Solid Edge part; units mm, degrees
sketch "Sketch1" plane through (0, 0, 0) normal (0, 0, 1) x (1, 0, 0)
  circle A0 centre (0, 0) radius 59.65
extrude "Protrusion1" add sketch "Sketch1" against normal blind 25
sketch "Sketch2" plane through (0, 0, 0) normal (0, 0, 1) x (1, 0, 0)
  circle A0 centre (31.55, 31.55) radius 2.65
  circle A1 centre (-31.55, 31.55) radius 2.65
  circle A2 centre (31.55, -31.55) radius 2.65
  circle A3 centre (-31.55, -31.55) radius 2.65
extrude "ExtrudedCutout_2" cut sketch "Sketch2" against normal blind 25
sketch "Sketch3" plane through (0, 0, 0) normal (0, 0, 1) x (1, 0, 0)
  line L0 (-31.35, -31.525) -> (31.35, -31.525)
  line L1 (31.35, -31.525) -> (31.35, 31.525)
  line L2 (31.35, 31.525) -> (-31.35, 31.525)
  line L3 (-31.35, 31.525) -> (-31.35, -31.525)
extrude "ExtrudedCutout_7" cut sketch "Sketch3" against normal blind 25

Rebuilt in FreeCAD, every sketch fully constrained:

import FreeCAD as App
import Part
import Sketcher

V = App.Vector

doc = App.newDocument("Part")
body = doc.addObject("PartDesign::Body", "Body")

sketch1 = body.newObject("Sketcher::SketchObject", "Sketch")
sketch1.AttachmentSupport = (doc.getObject("XY_Plane"), [""])
sketch1.MapMode = "FlatFace"
sketch1.addGeometry(Part.Circle(V(0, 0, 0), V(0, 0, 1), 60), False)
sketch1.addConstraint([
    Sketcher.Constraint("Coincident", 0, 3, -1, 1),
    Sketcher.Constraint("Diameter", 0, 119.3),
])
pad1 = body.newObject("PartDesign::Pad", "Pad")
pad1.Profile = sketch1
pad1.Length = 25
pad1.Reversed = True

sketch2 = body.newObject("Sketcher::SketchObject", "Sketch001")
sketch2.AttachmentSupport = (doc.getObject("XY_Plane"), [""])
sketch2.MapMode = "FlatFace"
sketch2.addGeometry([
    Part.Circle(V(31.6, 31.6, 0), V(0, 0, 1), 2.6),
    Part.Circle(V(-31.6, 31.6, 0), V(0, 0, 1), 2.6),
    Part.Circle(V(31.6, -31.6, 0), V(0, 0, 1), 2.6),
    Part.Circle(V(-31.6, -31.6, 0), V(0, 0, 1), 2.6),
], False)
sketch2.addConstraint([
    Sketcher.Constraint("Equal", 0, 1),
    Sketcher.Constraint("Equal", 1, 2),
    Sketcher.Constraint("Equal", 2, 3),
    Sketcher.Constraint("Symmetric", 1, 3, 2, 3, -1, 1),
    Sketcher.Constraint("Symmetric", 0, 3, 3, 3, -1, 1),
    Sketcher.Constraint("Symmetric", 0, 3, 1, 3, -2),
    Sketcher.Constraint("Diameter", 0, 5.3),
    Sketcher.Constraint("DistanceX", 1, 3, 0, 3, 63.1),
    Sketcher.Constraint("DistanceY", 2, 3, 0, 3, 63.1),
])
pocket1 = body.newObject("PartDesign::Pocket", "Pocket")
pocket1.Profile = sketch2
pocket1.Length = 25

sketch3 = body.newObject("Sketcher::SketchObject", "Sketch002")
sketch3.AttachmentSupport = (doc.getObject("XY_Plane"), [""])
sketch3.MapMode = "FlatFace"
sketch3.addGeometry([
    Part.LineSegment(V(-31, 32, 0), V(-31, -32, 0)),
    Part.LineSegment(V(-31, -32, 0), V(31, -32, 0)),
    Part.LineSegment(V(31, -32, 0), V(31, 32, 0)),
    Part.LineSegment(V(31, 32, 0), V(-31, 32, 0)),
], False)
sketch3.addConstraint([
    Sketcher.Constraint("Coincident", 0, 2, 1, 1),
    Sketcher.Constraint("Coincident", 1, 2, 2, 1),
    Sketcher.Constraint("Coincident", 2, 2, 3, 1),
    Sketcher.Constraint("Coincident", 3, 2, 0, 1),
    Sketcher.Constraint("Vertical", 0),
    Sketcher.Constraint("Horizontal", 1),
    Sketcher.Constraint("Vertical", 2),
    Sketcher.Constraint("Horizontal", 3),
    Sketcher.Constraint("Symmetric", 0, 2, 2, 2, -1, 1),
    Sketcher.Constraint("DistanceX", 1, 1, 1, 2, 62.7),
    Sketcher.Constraint("DistanceY", 0, 2, 0, 1, 63.05),
])
pocket2 = body.newObject("PartDesign::Pocket", "Pocket001")
pocket2.Profile = sketch3
pocket2.Length = 25

doc.recompute()
